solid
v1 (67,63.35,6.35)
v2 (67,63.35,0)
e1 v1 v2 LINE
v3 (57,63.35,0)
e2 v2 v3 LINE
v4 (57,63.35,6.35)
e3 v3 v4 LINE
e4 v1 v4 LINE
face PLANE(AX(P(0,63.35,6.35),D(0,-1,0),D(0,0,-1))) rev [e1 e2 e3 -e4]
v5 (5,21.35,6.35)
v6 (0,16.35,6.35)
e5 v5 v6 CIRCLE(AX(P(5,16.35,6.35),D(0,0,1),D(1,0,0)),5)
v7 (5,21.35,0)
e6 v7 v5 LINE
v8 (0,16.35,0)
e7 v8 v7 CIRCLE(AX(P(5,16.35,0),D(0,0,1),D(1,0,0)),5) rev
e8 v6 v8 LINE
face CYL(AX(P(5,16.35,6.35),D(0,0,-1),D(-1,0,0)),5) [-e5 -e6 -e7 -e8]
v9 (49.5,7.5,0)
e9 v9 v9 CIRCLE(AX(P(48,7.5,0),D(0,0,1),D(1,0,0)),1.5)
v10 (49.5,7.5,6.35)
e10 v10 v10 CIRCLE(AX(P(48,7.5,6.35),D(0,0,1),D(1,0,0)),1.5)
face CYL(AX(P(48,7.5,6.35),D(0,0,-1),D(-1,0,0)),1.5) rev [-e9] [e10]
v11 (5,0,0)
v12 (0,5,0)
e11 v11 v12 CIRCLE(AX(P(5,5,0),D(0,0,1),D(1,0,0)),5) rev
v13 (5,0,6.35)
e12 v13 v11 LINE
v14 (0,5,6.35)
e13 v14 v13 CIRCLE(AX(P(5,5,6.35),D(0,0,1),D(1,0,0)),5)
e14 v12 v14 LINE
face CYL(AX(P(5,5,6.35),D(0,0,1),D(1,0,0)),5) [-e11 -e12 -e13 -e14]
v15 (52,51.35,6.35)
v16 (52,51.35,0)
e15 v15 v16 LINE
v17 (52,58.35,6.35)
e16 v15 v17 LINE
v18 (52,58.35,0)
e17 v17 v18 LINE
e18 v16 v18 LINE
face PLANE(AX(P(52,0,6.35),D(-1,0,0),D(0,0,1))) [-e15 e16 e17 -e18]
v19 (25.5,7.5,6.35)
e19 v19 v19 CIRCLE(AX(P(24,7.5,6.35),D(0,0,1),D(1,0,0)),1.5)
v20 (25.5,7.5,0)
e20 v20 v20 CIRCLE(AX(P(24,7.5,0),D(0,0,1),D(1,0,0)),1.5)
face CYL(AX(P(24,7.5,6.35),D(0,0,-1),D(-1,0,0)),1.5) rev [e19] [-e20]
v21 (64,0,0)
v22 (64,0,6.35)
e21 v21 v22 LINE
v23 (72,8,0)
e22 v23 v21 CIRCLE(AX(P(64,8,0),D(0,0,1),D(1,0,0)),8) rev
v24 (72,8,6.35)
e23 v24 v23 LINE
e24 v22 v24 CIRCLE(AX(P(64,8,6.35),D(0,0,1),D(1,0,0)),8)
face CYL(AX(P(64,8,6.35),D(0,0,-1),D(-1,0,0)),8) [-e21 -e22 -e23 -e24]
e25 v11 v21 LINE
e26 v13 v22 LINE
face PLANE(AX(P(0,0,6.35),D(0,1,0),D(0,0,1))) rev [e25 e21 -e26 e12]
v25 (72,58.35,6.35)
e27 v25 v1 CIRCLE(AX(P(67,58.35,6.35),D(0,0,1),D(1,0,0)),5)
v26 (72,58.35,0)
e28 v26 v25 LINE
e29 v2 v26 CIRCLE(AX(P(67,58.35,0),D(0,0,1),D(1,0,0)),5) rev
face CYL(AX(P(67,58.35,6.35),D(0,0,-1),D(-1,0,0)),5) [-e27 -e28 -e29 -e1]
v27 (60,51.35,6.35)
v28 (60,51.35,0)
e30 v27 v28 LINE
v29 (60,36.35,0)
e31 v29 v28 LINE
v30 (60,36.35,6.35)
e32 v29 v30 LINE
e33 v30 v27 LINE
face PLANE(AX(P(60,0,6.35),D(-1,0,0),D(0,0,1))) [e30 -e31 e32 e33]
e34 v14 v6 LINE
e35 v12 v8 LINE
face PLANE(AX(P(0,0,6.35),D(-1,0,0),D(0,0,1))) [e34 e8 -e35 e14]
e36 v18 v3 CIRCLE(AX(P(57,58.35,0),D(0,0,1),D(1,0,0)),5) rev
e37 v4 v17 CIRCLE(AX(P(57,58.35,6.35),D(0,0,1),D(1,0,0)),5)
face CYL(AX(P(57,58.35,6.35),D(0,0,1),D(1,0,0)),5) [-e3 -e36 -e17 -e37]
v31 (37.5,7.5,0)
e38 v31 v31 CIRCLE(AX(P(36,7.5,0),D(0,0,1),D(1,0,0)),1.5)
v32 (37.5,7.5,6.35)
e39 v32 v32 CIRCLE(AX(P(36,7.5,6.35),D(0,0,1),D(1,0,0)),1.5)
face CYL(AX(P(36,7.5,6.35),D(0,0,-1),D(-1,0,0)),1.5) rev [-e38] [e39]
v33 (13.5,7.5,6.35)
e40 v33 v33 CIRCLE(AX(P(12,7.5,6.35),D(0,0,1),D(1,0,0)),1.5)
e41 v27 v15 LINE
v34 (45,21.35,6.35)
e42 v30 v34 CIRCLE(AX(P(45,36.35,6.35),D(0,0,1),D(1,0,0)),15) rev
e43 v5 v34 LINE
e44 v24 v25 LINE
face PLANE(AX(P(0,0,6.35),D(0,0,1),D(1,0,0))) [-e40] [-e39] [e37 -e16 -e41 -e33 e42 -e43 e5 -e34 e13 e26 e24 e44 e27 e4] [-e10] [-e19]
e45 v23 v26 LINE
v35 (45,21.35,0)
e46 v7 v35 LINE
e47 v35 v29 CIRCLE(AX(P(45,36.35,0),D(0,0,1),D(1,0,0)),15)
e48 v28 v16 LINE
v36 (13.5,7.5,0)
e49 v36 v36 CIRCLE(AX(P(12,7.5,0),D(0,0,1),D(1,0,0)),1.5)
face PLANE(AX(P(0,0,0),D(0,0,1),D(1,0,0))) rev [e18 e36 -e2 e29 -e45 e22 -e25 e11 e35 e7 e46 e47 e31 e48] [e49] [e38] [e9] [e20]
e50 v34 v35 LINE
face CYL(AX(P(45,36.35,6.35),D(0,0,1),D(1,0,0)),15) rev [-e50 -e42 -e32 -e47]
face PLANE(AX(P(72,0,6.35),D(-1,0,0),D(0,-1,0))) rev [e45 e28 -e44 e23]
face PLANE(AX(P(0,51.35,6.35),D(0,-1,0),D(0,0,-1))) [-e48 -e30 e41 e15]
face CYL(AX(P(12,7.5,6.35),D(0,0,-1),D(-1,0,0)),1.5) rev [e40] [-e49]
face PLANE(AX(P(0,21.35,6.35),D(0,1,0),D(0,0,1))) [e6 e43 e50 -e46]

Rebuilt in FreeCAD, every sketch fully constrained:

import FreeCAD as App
import Part
import Sketcher
Q = App.Units.Quantity


def edges_at(feature, points):
    """Names of the edges that pass closest to the given points."""
    edges = feature.Shape.Edges
    near = lambda p: min(range(len(edges)), key=lambda i: edges[i].distToShape(Part.Vertex(*p))[0])
    return sorted({f"Edge{near(p) + 1}" for p in points})

doc = App.newDocument("Part")
body = doc.addObject("PartDesign::Body", "Body")

sketch1 = doc.addObject("Sketcher::SketchObject", "Sketch")
body.addObject(sketch1)
sketch1.AttachmentSupport = (doc.XY_Plane, [""])
sketch1.MapMode = "FlatFace"
sketch1.addGeometry([
    Part.LineSegment(App.Vector(0, 21.35, 0), App.Vector(0, 0, 0)),
    Part.LineSegment(App.Vector(0, 0, 0), App.Vector(72, 0, 0)),
    Part.LineSegment(App.Vector(72, 0, 0), App.Vector(72, 63.35, 0)),
    Part.LineSegment(App.Vector(72, 63.35, 0), App.Vector(52, 63.35, 0)),
    Part.LineSegment(App.Vector(52, 63.35, 0), App.Vector(52, 51.35, 0)),
    Part.LineSegment(App.Vector(52, 51.35, 0), App.Vector(60, 51.35, 0)),
    Part.LineSegment(App.Vector(60, 51.35, 0), App.Vector(60, 21.35, 0)),
    Part.LineSegment(App.Vector(60, 21.35, 0), App.Vector(0, 21.35, 0)),
    Part.Circle(App.Vector(12, 7.5, 0), App.Vector(0, 0, 1), 1.5),
    Part.Circle(App.Vector(24, 7.5, 0), App.Vector(0, 0, 1), 1.5),
    Part.Circle(App.Vector(36, 7.5, 0), App.Vector(0, 0, 1), 1.5),
    Part.Circle(App.Vector(48, 7.5, 0), App.Vector(0, 0, 1), 1.5),
], False)
sketch1.addConstraint([
    Sketcher.Constraint("Coincident", 0, 2, 1, 1),
    Sketcher.Constraint("Coincident", 1, 2, 2, 1),
    Sketcher.Constraint("Coincident", 2, 2, 3, 1),
    Sketcher.Constraint("Coincident", 3, 2, 4, 1),
    Sketcher.Constraint("Coincident", 4, 2, 5, 1),
    Sketcher.Constraint("Coincident", 5, 2, 6, 1),
    Sketcher.Constraint("Coincident", 6, 2, 7, 1),
    Sketcher.Constraint("Coincident", 7, 2, 0, 1),
    Sketcher.Constraint("Vertical", 0),
    Sketcher.Constraint("Horizontal", 1),
    Sketcher.Constraint("Vertical", 2),
    Sketcher.Constraint("Horizontal", 3),
    Sketcher.Constraint("Vertical", 4),
    Sketcher.Constraint("Horizontal", 5),
    Sketcher.Constraint("Vertical", 6),
    Sketcher.Constraint("Horizontal", 7),
    Sketcher.Constraint("Coincident", 0, 2, -1, 1),
    Sketcher.Constraint("Equal", 8, 9),
    Sketcher.Constraint("Equal", 9, 10),
    Sketcher.Constraint("Equal", 10, 11),
    Sketcher.Constraint("Horizontal", 8, 3, 9, 3),
    Sketcher.Constraint("Horizontal", 9, 3, 10, 3),
    Sketcher.Constraint("Horizontal", 10, 3, 11, 3),
    Sketcher.Constraint("Diameter", 8, Q("3 mm")),
    Sketcher.Constraint("DistanceX", 1, 1, 1, 2, Q("72 mm")),
    Sketcher.Constraint("DistanceX", 3, 2, 3, 1, Q("20 mm")),
    Sketcher.Constraint("DistanceX", 5, 1, 5, 2, Q("8 mm")),
    Sketcher.Constraint("DistanceY", 4, 2, 4, 1, Q("12 mm")),
    Sketcher.Constraint("DistanceY", 6, 2, 6, 1, Q("30 mm")),
    Sketcher.Constraint("DistanceX", -1, 1, 8, 3, Q("12 mm")),
    Sketcher.Constraint("DistanceX", -1, 1, 9, 3, Q("24 mm")),
    Sketcher.Constraint("DistanceX", -1, 1, 10, 3, Q("36 mm")),
    Sketcher.Constraint("DistanceX", -1, 1, 11, 3, Q("48 mm")),
    Sketcher.Constraint("DistanceY", 0, 2, 0, 1, Q("21.35 mm")),
    Sketcher.Constraint("DistanceY", -1, 1, 8, 3, Q("7.5 mm")),
])
pad1 = doc.addObject("PartDesign::Pad", "Pad")
body.addObject(pad1)
pad1.Profile = sketch1
pad1.Length = 6.35
doc.recompute()

fillet = doc.addObject("PartDesign::Fillet", "Fillet")
body.addObject(fillet)
fillet.Base = (pad1, edges_at(pad1, [(60, 21.35, 3.175)]))
fillet.Radius = 15
doc.recompute()

fillet2 = doc.addObject("PartDesign::Fillet", "Fillet001")
body.addObject(fillet2)
fillet2.Base = (fillet, edges_at(fillet, [(52, 63.35, 3.175)]))
fillet2.Radius = 5
doc.recompute()

fillet3 = doc.addObject("PartDesign::Fillet", "Fillet002")
body.addObject(fillet3)
fillet3.Base = (fillet2, edges_at(fillet2, [(0, 0, 3.175), (0, 21.35, 3.175)]))
fillet3.Radius = 5
doc.recompute()

fillet4 = doc.addObject("PartDesign::Fillet", "Fillet003")
body.addObject(fillet4)
fillet4.Base = (fillet3, edges_at(fillet3, [(72, 63.35, 3.175)]))
fillet4.Radius = 5
doc.recompute()

fillet5 = doc.addObject("PartDesign::Fillet", "Fillet004")
body.addObject(fillet5)
fillet5.Base = (fillet4, edges_at(fillet4, [(72, 0, 3.175)]))
fillet5.Radius = 8

doc.recompute()
